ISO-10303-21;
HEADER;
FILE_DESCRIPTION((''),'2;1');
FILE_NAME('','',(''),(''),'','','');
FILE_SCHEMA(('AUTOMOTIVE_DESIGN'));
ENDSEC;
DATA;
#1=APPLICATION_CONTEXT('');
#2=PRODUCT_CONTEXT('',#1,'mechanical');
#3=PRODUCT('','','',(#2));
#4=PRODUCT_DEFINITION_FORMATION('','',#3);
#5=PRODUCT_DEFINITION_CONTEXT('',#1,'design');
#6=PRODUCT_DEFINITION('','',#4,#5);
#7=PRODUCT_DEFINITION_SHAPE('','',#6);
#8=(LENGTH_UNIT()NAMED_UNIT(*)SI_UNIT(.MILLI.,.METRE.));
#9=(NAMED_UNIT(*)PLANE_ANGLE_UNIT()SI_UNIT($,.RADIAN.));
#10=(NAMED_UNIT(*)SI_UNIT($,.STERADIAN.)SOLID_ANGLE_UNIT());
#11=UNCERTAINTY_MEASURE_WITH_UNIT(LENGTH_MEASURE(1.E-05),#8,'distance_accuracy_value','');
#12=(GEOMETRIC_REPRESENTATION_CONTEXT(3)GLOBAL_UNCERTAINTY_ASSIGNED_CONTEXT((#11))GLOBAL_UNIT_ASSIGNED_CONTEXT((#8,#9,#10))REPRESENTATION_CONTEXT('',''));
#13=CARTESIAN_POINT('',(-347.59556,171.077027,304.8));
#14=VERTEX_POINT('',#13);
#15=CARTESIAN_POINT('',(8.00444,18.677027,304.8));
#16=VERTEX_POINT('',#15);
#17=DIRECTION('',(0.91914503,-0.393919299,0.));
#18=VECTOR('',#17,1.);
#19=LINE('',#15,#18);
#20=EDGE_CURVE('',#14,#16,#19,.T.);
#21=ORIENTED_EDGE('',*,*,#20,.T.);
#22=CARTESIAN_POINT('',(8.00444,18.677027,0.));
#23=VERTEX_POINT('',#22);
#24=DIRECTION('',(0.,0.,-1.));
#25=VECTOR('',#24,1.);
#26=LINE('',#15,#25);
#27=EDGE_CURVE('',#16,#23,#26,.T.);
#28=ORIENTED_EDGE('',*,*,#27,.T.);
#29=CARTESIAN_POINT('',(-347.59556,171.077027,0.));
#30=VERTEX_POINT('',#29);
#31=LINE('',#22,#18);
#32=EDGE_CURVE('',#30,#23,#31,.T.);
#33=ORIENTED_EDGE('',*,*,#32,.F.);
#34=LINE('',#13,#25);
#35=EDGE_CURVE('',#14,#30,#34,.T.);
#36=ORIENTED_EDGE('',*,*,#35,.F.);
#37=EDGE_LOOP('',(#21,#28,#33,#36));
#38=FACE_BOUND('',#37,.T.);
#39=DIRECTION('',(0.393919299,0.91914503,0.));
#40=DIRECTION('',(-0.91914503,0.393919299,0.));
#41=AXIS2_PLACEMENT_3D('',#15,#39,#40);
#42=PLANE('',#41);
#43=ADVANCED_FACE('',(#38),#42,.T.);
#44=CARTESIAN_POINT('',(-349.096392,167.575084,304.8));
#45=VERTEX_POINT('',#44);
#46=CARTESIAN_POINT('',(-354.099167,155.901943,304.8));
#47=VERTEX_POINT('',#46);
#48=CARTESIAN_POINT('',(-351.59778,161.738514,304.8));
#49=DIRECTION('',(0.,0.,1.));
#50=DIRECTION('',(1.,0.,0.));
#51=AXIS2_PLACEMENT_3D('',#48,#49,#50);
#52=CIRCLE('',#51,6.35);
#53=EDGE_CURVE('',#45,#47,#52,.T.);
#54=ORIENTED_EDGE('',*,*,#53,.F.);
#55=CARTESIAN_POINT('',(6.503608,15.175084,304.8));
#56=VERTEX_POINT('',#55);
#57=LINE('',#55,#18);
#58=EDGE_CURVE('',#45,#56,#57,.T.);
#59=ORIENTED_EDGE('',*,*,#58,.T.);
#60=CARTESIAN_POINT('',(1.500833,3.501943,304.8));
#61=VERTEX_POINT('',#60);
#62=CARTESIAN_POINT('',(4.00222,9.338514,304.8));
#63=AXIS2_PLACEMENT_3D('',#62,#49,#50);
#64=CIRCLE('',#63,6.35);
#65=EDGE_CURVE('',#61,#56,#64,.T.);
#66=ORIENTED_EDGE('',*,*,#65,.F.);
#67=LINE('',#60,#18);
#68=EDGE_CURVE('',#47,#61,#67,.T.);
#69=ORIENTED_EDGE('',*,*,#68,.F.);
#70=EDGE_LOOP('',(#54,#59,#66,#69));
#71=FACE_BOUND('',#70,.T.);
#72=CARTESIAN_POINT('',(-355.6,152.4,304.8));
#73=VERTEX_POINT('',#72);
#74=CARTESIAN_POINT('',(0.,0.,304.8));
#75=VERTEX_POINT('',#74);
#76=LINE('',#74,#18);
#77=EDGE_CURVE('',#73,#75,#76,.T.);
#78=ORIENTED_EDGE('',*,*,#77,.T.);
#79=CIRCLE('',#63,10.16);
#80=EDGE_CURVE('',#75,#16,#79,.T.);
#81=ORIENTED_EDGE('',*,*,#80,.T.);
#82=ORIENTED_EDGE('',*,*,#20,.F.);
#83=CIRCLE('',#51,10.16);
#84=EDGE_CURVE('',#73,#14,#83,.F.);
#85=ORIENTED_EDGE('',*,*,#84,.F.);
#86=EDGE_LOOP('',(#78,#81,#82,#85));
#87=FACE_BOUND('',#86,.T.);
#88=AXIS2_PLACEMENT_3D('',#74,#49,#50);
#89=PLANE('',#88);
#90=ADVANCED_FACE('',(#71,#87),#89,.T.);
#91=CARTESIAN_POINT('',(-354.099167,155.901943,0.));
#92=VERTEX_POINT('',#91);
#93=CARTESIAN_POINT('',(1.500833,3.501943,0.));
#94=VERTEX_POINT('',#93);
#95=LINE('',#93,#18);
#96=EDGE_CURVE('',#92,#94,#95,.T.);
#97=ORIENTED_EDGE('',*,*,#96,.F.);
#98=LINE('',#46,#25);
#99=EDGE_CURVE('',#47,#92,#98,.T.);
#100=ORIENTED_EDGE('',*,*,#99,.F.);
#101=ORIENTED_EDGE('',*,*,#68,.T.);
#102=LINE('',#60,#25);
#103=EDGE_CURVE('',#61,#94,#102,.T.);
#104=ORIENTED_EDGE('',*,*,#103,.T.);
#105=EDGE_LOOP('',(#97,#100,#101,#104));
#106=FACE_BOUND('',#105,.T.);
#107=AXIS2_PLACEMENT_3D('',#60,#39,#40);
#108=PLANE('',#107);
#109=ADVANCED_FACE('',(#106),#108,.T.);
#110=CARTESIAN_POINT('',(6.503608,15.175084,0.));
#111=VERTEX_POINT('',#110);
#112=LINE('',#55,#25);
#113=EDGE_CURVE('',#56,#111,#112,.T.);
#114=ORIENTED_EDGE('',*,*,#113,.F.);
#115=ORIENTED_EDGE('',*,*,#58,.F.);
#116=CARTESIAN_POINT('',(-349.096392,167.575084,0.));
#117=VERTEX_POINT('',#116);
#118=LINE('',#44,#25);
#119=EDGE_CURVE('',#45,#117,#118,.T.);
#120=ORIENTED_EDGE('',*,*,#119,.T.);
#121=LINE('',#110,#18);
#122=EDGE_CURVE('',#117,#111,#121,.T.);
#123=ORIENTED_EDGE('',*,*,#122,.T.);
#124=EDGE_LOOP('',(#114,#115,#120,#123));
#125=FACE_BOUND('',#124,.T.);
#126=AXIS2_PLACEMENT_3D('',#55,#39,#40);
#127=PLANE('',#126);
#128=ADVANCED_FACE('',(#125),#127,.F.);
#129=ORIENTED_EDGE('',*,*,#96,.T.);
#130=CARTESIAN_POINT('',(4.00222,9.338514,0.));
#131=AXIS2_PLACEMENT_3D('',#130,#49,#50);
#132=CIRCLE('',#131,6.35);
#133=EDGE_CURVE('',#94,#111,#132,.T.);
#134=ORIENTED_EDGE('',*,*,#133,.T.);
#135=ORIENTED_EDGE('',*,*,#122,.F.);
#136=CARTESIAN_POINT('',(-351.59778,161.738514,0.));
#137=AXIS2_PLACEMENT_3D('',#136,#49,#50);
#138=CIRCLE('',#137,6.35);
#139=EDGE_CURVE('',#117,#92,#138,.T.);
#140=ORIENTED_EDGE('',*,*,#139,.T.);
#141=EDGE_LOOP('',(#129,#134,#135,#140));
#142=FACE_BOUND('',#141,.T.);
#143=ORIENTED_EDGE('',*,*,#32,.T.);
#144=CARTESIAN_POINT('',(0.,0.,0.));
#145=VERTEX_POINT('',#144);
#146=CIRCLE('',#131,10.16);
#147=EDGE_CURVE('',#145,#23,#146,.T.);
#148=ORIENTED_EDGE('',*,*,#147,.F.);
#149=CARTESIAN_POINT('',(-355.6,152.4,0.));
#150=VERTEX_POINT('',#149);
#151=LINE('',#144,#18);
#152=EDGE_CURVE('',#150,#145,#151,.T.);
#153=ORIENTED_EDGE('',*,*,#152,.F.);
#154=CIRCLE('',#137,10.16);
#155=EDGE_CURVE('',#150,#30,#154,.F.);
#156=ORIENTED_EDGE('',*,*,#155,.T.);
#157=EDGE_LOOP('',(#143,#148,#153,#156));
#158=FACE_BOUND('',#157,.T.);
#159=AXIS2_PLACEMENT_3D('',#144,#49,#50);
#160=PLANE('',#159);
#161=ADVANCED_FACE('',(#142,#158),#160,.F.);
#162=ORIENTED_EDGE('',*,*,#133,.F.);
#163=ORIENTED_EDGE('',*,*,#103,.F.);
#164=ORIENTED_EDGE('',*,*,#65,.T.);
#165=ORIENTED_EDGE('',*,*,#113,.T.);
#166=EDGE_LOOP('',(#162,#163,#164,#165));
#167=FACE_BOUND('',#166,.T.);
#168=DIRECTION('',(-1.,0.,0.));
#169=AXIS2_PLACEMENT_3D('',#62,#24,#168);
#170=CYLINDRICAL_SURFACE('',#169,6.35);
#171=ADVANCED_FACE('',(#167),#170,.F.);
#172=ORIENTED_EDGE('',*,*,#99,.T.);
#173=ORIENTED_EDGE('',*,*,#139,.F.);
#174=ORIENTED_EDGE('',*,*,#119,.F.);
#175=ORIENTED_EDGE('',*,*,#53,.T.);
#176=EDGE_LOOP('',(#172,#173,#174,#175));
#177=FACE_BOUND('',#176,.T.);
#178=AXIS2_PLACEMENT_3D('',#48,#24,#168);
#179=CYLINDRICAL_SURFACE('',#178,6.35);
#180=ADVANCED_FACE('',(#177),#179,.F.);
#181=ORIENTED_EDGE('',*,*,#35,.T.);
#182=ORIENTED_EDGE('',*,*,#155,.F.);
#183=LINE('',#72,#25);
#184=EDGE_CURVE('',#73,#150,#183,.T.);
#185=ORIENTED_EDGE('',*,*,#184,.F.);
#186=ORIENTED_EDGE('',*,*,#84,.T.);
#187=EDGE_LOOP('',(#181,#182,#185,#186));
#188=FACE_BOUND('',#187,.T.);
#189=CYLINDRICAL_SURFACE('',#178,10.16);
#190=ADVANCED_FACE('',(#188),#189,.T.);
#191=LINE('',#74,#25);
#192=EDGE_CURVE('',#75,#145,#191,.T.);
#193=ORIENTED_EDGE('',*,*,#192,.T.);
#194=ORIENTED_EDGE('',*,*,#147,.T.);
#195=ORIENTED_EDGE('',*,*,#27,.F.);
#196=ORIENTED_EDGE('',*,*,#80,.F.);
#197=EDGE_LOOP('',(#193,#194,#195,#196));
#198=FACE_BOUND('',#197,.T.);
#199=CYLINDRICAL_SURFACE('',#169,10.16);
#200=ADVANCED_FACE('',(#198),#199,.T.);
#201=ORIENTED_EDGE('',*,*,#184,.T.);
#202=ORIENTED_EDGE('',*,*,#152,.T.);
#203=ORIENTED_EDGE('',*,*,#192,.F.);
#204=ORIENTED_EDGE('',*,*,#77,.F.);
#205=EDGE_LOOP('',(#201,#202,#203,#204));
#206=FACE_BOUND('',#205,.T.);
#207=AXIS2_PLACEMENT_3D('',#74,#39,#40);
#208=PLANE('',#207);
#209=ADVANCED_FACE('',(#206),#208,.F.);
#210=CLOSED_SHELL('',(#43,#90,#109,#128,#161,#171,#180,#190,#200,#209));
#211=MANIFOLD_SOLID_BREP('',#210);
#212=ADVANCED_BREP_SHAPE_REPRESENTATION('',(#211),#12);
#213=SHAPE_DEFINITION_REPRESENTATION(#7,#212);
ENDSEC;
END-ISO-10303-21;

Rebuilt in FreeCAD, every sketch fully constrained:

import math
import FreeCAD as App
import Part
import Sketcher
from FreeCAD import Vector
Q = App.Units.Quantity

doc = App.newDocument("Part")
params = doc.addObject("Spreadsheet::Sheet", "Params")
for row, (alias, value) in enumerate([
    ("sketch1_radius", "0.4 in"),
    ("sketch1_radius2", "0.25 in"),
    ("pad1_length", "12 in"),
], start=1):
    params.set(f"A{row}", alias)
    params.set(f"B{row}", "=" + value)
    params.setAlias(f"B{row}", alias)

body = doc.addObject("PartDesign::Body", "Body")

sketch1 = body.newObject("Sketcher::SketchObject", "Sketch")
sketch1.AttachmentSupport = (doc.getObject("XY_Plane"), [""])
sketch1.MapMode = "FlatFace"
sketch1.addGeometry([
    Part.LineSegment(Vector(8, 19, 0), Vector(-348, 171, 0)),
    Part.ArcOfCircle(Part.Circle(Vector(-352, 162, 0), Vector(0, 0, 1), 10), math.radians(67), math.radians(247)),
    Part.LineSegment(Vector(-356, 152, 0), Vector(0, 0, 0)),
    Part.ArcOfCircle(Part.Circle(Vector(4, 9, 0), Vector(0, 0, 1), 10), math.radians(-113), math.radians(67)),
    Part.LineSegment(Vector(-349, 168, 0), Vector(7, 15, 0)),
    Part.ArcOfCircle(Part.Circle(Vector(4, 9, 0), Vector(0, 0, 1), 6), math.radians(-113), math.radians(67)),
    Part.LineSegment(Vector(2, 4, 0), Vector(-354, 156, 0)),
    Part.ArcOfCircle(Part.Circle(Vector(-352, 162, 0), Vector(0, 0, 1), 6), math.radians(67), math.radians(247)),
], False)
sketch1.addConstraint([
    Sketcher.Constraint("Tangent", 0, 2, 1, 1),
    Sketcher.Constraint("Tangent", 1, 2, 2, 1),
    Sketcher.Constraint("Tangent", 2, 2, 3, 1),
    Sketcher.Constraint("Tangent", 3, 2, 0, 1),
    Sketcher.Constraint("Tangent", 4, 2, 5, 2),
    Sketcher.Constraint("Tangent", 5, 1, 6, 1),
    Sketcher.Constraint("Tangent", 6, 2, 7, 2),
    Sketcher.Constraint("Tangent", 7, 1, 4, 1),
    Sketcher.Constraint("Coincident", 2, 2, -1, 1),
    Sketcher.Constraint("Coincident", 5, 3, 3, 3),
    Sketcher.Constraint("Coincident", 7, 3, 1, 3),
    Sketcher.Constraint("Equal", 1, 3),
    Sketcher.Constraint("Equal", 5, 7),
    Sketcher.Constraint("Radius", 1, Q("0.4 in")),
    Sketcher.Constraint("Radius", 5, Q("0.25 in")),
    Sketcher.Constraint("DistanceX", 1, 2, -1, 1, Q("14 in")),
    Sketcher.Constraint("DistanceY", -1, 1, 1, 2, Q("6 in")),
])
sketch1.setExpression("Constraints[13]", "Params.sketch1_radius")
sketch1.setExpression("Constraints[14]", "Params.sketch1_radius2")
pad1 = body.newObject("PartDesign::Pad", "Pad")
pad1.Profile = sketch1
pad1.setExpression("Length", "Params.pad1_length")

doc.recompute()
